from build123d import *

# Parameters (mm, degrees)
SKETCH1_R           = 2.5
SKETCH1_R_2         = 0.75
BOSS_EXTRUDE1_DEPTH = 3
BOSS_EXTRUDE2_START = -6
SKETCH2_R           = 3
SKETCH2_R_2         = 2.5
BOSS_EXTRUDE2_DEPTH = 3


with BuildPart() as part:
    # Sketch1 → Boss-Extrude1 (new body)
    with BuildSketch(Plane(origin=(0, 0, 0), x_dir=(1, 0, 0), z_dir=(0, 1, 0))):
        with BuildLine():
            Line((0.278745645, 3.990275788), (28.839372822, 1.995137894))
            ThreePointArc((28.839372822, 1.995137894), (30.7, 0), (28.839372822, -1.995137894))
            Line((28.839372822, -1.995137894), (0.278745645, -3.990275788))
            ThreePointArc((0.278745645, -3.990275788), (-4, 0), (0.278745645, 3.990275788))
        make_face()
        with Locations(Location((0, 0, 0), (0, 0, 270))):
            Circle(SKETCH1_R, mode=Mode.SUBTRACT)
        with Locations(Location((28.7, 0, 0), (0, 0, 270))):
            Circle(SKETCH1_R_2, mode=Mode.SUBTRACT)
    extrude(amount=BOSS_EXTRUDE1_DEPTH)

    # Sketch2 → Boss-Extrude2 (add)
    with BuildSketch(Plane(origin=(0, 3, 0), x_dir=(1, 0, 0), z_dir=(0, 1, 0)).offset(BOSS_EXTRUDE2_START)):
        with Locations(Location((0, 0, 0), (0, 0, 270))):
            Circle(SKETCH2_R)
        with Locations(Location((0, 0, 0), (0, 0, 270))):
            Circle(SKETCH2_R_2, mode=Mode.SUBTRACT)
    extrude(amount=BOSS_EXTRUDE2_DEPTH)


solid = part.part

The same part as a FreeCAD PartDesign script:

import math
import FreeCAD as App
import Part
import Sketcher
from FreeCAD import Vector

doc = App.newDocument("Part")
params = doc.addObject("Spreadsheet::Sheet", "Params")
for row, (alias, value) in enumerate([
    ("sketch1_diameter", "5 mm"),
    ("sketch1_radius", "4 mm"),
    ("sketch1_radius2", "2 mm"),
    ("sketch1_diameter2", "1.5 mm"),
    ("pad1_length", "3 mm"),
    ("sketch2_diameter", "6 mm"),
    ("sketch2_diameter2", "5 mm"),
    ("pad2_length", "3 mm"),
], start=1):
    params.set(f"A{row}", alias)
    params.set(f"B{row}", "=" + value)
    params.setAlias(f"B{row}", alias)

body = doc.addObject("PartDesign::Body", "Body")

sketch1 = doc.addObject("Sketcher::SketchObject", "Sketch")
body.addObject(sketch1)
sketch1.AttachmentSupport = (doc.XZ_Plane, [""])
sketch1.MapMode = "FlatFace"
sketch1.addGeometry([
    Part.LineSegment(Vector(28.839373, -1.995138, 0), Vector(0.278746, -3.990276, 0)),
    Part.ArcOfCircle(Part.Circle(Vector(0, 0, 0), Vector(0, 0, 1), 4), math.radians(86.004024), math.radians(273.995976)),
    Part.LineSegment(Vector(0.278746, 3.990276, 0), Vector(28.839373, 1.995138, 0)),
    Part.ArcOfCircle(Part.Circle(Vector(28.7, 0, 0), Vector(0, 0, 1), 2), math.radians(-86.004024), math.radians(86.004024)),
    Part.Circle(Vector(28.7, 0, 0), Vector(0, 0, 1), 0.75),
    Part.Circle(Vector(0, 0, 0), Vector(0, 0, 1), 2.5),
], False)
sketch1.addConstraint([
    Sketcher.Constraint("Tangent", 0, 2, 1, 2),
    Sketcher.Constraint("Tangent", 1, 1, 2, 1),
    Sketcher.Constraint("Tangent", 2, 2, 3, 2),
    Sketcher.Constraint("Tangent", 3, 1, 0, 1),
    Sketcher.Constraint("Coincident", 1, 3, -1, 1),
    Sketcher.Constraint("Coincident", 5, 3, -1, 1),
    Sketcher.Constraint("Coincident", 4, 3, 3, 3),
    Sketcher.Constraint("PointOnObject", 3, 3, -1),
    Sketcher.Constraint("Diameter", 5, 5.0),
    Sketcher.Constraint("Radius", 1, 4.0),
    Sketcher.Constraint("Radius", 3, 2.0),
    Sketcher.Constraint("Diameter", 4, 1.5),
    Sketcher.Constraint("DistanceX", -1, 1, 3, 3, 28.7),
])
sketch1.setExpression("Constraints[8]", "Params.sketch1_diameter")
sketch1.setExpression("Constraints[9]", "Params.sketch1_radius")
sketch1.setExpression("Constraints[10]", "Params.sketch1_radius2")
sketch1.setExpression("Constraints[11]", "Params.sketch1_diameter2")
pad1 = doc.addObject("PartDesign::Pad", "Pad")
body.addObject(pad1)
pad1.Profile = sketch1
pad1.setExpression("Length", "Params.pad1_length")
pad1.Reversed = True

sketch2 = doc.addObject("Sketcher::SketchObject", "Sketch001")
body.addObject(sketch2)
sketch2.AttachmentSupport = (doc.XZ_Plane, [""])
sketch2.MapMode = "FlatFace"
sketch2.AttachmentOffset = App.Placement(Vector(0, 0, 3), App.Rotation())
sketch2.addGeometry([
    Part.Circle(Vector(0, 0, 0), Vector(0, 0, 1), 3),
    Part.Circle(Vector(0, 0, 0), Vector(0, 0, 1), 2.5),
], False)
sketch2.addConstraint([
    Sketcher.Constraint("Coincident", 0, 3, -1, 1),
    Sketcher.Constraint("Coincident", 1, 3, -1, 1),
    Sketcher.Constraint("Diameter", 0, 6.0),
    Sketcher.Constraint("Diameter", 1, 5.0),
])
sketch2.setExpression("Constraints[2]", "Params.sketch2_diameter")
sketch2.setExpression("Constraints[3]", "Params.sketch2_diameter2")
pad2 = doc.addObject("PartDesign::Pad", "Pad001")
body.addObject(pad2)
pad2.Profile = sketch2
pad2.setExpression("Length", "Params.pad2_length")
pad2.Reversed = True

doc.recompute()
